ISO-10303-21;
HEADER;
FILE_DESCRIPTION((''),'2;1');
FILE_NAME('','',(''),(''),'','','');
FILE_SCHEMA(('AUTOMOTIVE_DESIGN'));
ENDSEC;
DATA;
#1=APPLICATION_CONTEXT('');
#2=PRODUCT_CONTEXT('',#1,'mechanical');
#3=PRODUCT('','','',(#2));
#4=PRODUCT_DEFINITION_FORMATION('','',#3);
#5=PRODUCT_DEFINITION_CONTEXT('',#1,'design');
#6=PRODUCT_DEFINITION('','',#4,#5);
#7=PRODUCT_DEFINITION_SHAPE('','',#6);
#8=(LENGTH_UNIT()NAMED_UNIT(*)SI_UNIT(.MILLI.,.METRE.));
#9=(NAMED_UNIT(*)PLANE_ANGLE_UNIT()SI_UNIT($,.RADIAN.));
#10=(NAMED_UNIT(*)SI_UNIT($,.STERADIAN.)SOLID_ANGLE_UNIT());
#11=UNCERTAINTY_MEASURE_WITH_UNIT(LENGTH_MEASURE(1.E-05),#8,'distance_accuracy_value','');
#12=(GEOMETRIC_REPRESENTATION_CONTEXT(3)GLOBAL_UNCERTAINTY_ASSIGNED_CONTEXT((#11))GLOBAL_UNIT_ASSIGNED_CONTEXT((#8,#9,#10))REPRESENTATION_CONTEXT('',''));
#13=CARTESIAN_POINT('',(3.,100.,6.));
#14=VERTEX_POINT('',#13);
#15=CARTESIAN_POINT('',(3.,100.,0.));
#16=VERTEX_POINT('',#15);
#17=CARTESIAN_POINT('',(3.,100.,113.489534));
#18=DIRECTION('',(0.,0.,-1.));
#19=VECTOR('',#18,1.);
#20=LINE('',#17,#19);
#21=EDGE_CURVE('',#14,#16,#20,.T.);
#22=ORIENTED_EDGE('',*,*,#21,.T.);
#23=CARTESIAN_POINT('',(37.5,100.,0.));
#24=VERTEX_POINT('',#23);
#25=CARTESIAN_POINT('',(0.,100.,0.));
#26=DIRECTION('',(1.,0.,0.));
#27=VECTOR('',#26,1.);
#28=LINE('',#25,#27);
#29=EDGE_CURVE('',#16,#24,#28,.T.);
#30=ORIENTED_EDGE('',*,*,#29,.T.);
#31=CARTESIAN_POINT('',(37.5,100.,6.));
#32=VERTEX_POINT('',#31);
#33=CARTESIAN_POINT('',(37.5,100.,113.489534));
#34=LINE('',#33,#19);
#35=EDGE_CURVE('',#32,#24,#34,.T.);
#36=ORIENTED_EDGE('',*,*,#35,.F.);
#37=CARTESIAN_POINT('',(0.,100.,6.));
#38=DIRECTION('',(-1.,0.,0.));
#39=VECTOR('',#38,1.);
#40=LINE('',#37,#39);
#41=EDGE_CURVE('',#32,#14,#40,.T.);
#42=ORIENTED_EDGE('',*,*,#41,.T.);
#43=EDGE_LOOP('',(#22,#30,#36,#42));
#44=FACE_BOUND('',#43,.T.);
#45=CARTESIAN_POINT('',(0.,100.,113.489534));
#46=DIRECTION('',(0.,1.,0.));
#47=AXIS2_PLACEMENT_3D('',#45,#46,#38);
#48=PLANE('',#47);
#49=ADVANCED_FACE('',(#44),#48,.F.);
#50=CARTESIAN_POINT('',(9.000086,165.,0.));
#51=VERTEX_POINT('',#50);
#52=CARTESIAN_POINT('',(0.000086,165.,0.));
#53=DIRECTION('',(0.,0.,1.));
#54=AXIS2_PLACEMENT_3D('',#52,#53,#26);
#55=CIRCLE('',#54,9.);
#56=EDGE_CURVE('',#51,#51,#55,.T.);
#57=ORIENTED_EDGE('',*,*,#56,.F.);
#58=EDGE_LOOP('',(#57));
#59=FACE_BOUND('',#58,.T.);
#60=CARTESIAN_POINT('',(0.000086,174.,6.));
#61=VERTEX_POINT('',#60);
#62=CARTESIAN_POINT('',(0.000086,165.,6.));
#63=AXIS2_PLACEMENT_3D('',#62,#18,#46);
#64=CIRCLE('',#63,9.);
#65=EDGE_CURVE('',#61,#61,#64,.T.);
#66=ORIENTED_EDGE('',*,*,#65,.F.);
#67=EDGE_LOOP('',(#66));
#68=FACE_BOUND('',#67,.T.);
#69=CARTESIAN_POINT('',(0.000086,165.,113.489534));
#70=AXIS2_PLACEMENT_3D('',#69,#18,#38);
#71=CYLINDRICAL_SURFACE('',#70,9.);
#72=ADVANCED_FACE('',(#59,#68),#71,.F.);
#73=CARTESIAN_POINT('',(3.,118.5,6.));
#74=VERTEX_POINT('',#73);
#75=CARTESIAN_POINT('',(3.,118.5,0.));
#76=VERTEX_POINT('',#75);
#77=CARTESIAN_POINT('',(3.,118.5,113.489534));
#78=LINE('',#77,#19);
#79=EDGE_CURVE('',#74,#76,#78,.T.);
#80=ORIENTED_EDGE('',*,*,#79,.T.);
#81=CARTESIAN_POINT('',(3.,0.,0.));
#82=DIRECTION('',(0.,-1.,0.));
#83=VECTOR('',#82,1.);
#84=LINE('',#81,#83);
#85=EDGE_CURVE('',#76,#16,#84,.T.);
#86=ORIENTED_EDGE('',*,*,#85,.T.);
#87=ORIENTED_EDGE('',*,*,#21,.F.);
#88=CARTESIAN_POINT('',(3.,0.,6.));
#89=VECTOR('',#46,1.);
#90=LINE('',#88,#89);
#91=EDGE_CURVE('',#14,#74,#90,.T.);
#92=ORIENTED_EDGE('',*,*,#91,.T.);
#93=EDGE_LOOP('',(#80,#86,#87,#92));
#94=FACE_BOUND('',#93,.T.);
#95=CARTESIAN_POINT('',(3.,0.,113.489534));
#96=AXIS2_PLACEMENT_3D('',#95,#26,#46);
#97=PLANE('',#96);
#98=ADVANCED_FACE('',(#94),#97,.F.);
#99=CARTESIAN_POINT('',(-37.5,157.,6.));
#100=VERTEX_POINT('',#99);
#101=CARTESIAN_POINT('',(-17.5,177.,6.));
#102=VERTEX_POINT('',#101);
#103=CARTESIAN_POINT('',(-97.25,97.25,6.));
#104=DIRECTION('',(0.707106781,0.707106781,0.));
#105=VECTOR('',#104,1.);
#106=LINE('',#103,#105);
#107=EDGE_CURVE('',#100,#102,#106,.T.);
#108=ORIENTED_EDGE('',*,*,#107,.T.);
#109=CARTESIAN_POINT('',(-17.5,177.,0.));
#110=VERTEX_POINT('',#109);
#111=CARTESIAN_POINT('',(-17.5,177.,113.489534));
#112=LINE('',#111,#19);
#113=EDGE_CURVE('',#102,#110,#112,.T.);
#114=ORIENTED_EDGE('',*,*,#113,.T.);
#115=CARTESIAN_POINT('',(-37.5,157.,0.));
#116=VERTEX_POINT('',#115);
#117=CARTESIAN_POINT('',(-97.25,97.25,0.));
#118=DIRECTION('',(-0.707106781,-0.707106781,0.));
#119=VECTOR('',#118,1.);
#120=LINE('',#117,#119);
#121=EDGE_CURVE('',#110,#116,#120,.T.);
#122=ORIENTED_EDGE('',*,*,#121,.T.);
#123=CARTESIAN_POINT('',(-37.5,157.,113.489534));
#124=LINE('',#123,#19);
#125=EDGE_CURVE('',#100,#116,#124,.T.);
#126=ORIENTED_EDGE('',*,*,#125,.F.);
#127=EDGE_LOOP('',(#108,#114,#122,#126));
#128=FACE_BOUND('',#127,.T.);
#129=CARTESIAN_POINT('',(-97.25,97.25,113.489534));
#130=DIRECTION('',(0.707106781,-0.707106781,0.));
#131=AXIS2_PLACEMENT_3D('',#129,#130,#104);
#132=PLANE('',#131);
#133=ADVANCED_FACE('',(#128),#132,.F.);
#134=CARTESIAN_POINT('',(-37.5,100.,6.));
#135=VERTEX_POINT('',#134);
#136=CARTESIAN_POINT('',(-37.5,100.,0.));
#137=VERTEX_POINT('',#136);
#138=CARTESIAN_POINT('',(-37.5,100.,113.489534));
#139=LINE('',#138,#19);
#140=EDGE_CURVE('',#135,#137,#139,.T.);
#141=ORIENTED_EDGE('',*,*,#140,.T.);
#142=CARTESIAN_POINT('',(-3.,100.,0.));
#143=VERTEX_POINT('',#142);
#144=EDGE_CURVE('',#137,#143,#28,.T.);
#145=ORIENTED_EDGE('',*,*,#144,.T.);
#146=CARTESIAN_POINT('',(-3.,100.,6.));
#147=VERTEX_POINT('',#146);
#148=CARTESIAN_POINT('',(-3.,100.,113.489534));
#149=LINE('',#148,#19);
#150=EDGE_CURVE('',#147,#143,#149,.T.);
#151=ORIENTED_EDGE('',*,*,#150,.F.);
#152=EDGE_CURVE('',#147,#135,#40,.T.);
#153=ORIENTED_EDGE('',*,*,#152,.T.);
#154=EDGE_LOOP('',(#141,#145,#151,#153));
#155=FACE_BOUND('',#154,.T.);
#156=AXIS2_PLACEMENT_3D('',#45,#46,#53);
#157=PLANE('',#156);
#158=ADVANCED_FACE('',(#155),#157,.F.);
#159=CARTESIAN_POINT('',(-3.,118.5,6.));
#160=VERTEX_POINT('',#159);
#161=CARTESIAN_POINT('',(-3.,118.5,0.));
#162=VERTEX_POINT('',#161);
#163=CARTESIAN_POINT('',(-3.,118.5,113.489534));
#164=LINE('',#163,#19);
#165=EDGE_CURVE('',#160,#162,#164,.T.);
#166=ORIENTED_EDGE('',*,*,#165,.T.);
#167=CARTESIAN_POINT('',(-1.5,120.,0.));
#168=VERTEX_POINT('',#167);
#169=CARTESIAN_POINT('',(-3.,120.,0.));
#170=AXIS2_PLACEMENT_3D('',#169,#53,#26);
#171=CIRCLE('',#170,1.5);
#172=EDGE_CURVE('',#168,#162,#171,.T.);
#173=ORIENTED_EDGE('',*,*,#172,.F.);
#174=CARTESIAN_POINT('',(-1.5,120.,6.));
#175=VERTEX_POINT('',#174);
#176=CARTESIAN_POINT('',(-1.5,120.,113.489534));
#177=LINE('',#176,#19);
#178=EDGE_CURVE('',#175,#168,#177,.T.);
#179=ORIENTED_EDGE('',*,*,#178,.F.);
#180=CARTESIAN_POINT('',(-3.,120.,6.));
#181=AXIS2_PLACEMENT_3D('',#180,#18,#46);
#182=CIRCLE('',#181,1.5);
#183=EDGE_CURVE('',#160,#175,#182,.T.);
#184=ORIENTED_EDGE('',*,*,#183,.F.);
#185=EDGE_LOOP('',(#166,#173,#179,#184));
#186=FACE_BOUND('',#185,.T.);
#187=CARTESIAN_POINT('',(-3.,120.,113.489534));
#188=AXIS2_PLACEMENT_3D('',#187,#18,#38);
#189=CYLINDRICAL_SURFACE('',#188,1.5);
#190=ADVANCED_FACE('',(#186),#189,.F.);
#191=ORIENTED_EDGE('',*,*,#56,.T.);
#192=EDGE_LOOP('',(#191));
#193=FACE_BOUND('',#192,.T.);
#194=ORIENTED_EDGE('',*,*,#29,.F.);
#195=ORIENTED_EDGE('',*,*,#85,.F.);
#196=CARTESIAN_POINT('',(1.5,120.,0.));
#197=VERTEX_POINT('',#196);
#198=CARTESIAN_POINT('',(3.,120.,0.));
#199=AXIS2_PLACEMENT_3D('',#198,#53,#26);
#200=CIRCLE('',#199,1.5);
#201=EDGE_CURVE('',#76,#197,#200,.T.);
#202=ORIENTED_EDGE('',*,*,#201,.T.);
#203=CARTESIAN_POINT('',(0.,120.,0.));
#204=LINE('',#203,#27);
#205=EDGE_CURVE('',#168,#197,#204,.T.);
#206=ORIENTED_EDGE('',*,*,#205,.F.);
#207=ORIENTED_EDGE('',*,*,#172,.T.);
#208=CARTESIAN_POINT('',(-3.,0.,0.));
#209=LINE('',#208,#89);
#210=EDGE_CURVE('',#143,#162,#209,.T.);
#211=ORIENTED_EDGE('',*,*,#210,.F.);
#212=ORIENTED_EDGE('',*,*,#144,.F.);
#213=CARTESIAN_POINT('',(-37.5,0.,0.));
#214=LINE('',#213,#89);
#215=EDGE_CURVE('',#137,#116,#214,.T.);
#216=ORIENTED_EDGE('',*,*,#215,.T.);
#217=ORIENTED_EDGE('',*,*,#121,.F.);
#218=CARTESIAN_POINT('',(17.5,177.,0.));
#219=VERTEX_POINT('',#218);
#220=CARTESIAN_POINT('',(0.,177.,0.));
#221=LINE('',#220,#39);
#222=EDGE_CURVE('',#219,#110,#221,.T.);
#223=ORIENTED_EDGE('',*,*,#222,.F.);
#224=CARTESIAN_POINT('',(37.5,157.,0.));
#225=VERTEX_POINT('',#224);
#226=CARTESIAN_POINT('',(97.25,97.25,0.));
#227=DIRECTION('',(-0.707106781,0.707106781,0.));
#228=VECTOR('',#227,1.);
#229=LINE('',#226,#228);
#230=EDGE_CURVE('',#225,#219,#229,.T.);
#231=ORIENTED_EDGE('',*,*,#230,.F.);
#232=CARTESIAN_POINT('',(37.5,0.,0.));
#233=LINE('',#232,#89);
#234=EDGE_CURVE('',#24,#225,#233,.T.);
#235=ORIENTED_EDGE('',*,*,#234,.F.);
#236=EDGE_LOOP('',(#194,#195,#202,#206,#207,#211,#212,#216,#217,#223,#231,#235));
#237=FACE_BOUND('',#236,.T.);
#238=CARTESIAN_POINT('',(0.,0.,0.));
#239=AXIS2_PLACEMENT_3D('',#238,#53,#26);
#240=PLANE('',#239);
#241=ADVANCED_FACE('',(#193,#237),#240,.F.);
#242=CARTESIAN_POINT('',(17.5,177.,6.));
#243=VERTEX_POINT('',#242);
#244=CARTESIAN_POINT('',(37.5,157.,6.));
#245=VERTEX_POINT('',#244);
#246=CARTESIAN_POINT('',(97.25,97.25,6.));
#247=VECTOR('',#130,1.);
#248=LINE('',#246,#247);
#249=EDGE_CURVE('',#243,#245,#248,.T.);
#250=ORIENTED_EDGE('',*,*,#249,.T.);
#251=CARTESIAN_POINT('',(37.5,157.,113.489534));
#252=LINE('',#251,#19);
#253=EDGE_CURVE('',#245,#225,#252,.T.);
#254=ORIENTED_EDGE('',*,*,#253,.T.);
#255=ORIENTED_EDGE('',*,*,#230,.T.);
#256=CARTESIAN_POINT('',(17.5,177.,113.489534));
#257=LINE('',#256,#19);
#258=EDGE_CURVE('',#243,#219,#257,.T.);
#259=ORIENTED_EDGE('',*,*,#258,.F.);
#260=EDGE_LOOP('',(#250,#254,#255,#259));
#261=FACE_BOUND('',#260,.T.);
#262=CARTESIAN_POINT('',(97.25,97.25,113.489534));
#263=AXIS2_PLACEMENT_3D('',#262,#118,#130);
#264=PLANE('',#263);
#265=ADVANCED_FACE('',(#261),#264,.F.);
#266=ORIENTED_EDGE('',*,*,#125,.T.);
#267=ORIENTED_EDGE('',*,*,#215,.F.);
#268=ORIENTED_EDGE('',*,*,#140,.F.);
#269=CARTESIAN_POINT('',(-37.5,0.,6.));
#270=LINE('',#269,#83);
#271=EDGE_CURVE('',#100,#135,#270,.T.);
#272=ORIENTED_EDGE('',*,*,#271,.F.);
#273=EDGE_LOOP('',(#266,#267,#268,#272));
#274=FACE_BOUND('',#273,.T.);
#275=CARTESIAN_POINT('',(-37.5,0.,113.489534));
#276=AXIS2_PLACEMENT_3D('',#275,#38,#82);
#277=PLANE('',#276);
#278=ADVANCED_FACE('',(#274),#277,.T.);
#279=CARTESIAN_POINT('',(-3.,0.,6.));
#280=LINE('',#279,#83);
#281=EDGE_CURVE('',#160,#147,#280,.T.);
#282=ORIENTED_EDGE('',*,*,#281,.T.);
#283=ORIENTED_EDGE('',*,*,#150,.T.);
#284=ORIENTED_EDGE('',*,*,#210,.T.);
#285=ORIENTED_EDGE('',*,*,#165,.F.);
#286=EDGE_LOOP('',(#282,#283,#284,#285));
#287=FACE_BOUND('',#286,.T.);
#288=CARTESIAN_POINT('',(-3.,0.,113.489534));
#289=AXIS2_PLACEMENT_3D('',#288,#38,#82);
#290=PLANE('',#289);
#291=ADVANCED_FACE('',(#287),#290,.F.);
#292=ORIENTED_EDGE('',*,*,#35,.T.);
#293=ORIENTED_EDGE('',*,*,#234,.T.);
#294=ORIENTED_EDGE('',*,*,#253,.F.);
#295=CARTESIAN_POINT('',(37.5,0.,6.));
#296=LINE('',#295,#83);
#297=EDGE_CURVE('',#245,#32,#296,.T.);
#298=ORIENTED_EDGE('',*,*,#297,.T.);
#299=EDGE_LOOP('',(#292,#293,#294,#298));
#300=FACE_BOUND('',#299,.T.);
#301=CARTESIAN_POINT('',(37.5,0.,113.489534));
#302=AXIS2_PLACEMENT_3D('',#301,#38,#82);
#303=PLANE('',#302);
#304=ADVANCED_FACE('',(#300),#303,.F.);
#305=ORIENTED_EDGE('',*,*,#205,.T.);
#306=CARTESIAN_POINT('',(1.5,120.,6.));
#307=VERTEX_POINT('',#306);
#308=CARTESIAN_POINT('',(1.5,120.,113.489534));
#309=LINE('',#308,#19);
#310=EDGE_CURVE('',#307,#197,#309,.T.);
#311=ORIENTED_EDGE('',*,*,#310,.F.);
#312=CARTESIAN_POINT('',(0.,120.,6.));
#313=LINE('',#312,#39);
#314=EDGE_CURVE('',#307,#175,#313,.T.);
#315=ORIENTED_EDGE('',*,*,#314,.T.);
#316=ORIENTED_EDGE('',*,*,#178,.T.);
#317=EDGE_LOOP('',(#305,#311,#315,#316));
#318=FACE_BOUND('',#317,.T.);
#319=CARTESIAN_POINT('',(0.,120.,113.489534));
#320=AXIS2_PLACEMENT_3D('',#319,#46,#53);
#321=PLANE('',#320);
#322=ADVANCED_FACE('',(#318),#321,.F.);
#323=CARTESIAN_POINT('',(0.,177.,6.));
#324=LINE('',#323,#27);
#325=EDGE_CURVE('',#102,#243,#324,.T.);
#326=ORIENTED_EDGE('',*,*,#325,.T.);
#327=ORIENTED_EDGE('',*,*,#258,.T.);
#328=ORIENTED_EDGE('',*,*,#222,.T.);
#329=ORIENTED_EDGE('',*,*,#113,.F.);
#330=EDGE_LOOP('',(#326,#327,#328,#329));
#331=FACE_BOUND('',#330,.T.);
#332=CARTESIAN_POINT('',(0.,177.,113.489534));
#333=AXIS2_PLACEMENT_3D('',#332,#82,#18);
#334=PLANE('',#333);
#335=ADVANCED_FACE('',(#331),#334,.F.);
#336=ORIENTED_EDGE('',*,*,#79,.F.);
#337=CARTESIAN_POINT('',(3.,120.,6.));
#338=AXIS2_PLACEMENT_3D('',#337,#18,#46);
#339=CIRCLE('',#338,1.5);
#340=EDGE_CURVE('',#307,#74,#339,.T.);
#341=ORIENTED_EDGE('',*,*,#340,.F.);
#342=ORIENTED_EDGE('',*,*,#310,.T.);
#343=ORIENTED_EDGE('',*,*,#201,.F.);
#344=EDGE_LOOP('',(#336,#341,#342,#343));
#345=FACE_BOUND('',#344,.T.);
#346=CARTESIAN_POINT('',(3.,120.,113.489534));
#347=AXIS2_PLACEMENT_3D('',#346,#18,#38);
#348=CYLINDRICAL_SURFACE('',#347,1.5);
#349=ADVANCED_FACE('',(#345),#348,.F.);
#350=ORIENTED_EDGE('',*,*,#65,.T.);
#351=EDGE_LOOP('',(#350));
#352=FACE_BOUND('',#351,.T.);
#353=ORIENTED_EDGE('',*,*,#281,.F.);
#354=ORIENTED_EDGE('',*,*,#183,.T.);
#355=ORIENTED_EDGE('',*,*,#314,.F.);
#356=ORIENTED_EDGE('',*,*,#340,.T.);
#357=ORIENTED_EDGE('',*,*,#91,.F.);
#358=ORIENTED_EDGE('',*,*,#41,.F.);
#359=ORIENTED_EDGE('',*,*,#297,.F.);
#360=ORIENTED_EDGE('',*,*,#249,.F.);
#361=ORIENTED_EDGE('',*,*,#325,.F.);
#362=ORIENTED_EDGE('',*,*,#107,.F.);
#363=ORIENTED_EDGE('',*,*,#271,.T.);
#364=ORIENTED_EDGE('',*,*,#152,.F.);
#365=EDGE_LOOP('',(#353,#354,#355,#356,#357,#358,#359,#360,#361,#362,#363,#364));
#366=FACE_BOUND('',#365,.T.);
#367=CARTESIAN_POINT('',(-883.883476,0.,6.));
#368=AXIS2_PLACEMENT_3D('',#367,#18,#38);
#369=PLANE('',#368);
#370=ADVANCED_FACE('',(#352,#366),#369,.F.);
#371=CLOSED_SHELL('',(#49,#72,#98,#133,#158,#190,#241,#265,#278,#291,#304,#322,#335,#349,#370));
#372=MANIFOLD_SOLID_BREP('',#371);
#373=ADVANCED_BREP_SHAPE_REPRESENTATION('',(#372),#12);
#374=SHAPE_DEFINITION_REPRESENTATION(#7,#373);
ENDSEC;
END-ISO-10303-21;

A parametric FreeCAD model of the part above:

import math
import FreeCAD as App
import Part
import Sketcher

V = App.Vector
Q = App.Units.Quantity

doc = App.newDocument("Part")
body = doc.addObject("PartDesign::Body", "Body")

# Sketch on XY plane
sketch1 = body.newObject("Sketcher::SketchObject", "Sketch")
sketch1.AttachmentSupport = (doc.getObject("XY_Plane"), [""])
sketch1.MapMode = "FlatFace"
sketch1.addGeometry([
    Part.LineSegment(V(3, 100, 0), V(37.5, 100, 0)),  # 0
    Part.LineSegment(V(37.5, 100, 0), V(37.5, 157, 0)),  # 1
    Part.LineSegment(V(37.5, 157, 0), V(17.5, 177, 0)),  # 2
    Part.LineSegment(V(17.5, 177, 0), V(-17.5, 177, 0)),  # 3
    Part.LineSegment(V(-17.5, 177, 0), V(-37.5, 157, 0)),  # 4
    Part.LineSegment(V(-37.5, 157, 0), V(-37.5, 100, 0)),  # 5
    Part.LineSegment(V(-37.5, 100, 0), V(-3, 100, 0)),  # 6
    Part.LineSegment(V(-3, 100, 0), V(-3, 118.5, 0)),  # 7
    Part.ArcOfCircle(Part.Circle(V(-3, 120, 0), V(0, 0, 1), 1.5), math.radians(0), math.radians(270)),  # 8
    Part.LineSegment(V(-1.5, 120, 0), V(1.5, 120, 0)),  # 9
    Part.ArcOfCircle(Part.Circle(V(3, 120, 0), V(0, 0, 1), 1.5), math.radians(0), math.radians(180)),  # 10
    Part.ArcOfCircle(Part.Circle(V(3, 120, 0), V(0, 0, 1), 1.5), math.radians(-90), math.radians(0)),  # 11
    Part.LineSegment(V(3, 118.5, 0), V(3, 100, 0)),  # 12
    Part.Circle(V(0.000086, 165, 0), V(0, 0, 1), 9),  # 13
], False)
sketch1.addConstraint([
    Sketcher.Constraint("Coincident", 0, 2, 1, 1),
    Sketcher.Constraint("Coincident", 1, 2, 2, 1),
    Sketcher.Constraint("Coincident", 2, 2, 3, 1),
    Sketcher.Constraint("Coincident", 3, 2, 4, 1),
    Sketcher.Constraint("Coincident", 4, 2, 5, 1),
    Sketcher.Constraint("Coincident", 5, 2, 6, 1),
    Sketcher.Constraint("Coincident", 6, 2, 7, 1),
    Sketcher.Constraint("Coincident", 7, 2, 8, 2),
    Sketcher.Constraint("Coincident", 8, 1, 9, 1),
    Sketcher.Constraint("Coincident", 9, 2, 10, 2),
    Sketcher.Constraint("Tangent", 10, 1, 11, 2),
    Sketcher.Constraint("Coincident", 11, 1, 12, 1),
    Sketcher.Constraint("Coincident", 12, 2, 0, 1),
    Sketcher.Constraint("Horizontal", 0),
    Sketcher.Constraint("Vertical", 1),
    Sketcher.Constraint("Horizontal", 3),
    Sketcher.Constraint("Vertical", 5),
    Sketcher.Constraint("Horizontal", 6),
    Sketcher.Constraint("Vertical", 7),
    Sketcher.Constraint("Horizontal", 9),
    Sketcher.Constraint("Vertical", 12),
    Sketcher.Constraint("Equal", 8, 10),
    Sketcher.Constraint("Equal", 10, 11),
    Sketcher.Constraint("Symmetric", 8, 3, 10, 3, -2),
    Sketcher.Constraint("Symmetric", 1, 2, 4, 2, -2),
    Sketcher.Constraint("Symmetric", 6, 2, 12, 2, -2),
    Sketcher.Constraint("Perpendicular", 2, 4),
    Sketcher.Constraint("Horizontal", 11, 3, 8, 1),
    Sketcher.Constraint("Horizontal", 9, 2, 10, 1),
    Sketcher.Constraint("Vertical", 8, 3, 6, 2),
    Sketcher.Constraint("Equal", 2, 4),
    Sketcher.Constraint("Diameter", 13, Q("18 mm")),
    Sketcher.Constraint("Radius", 8, Q("1.5 mm")),
    Sketcher.Constraint("DistanceX", 3, 2, 3, 1, Q("35 mm")),
    Sketcher.Constraint("DistanceX", 9, 1, 9, 2, Q("3 mm")),
    Sketcher.Constraint("DistanceY", 1, 1, 1, 2, Q("57 mm")),
    Sketcher.Constraint("DistanceX", 0, 1, 0, 2, Q("34.5 mm")),
    Sketcher.Constraint("DistanceY", 7, 1, 7, 2, Q("18.5 mm")),
    Sketcher.Constraint("DistanceY", -1, 1, 8, 3, Q("120 mm")),
    Sketcher.Constraint("DistanceY", -1, 1, 13, 3, Q("165 mm")),
    Sketcher.Constraint("DistanceX", 13, 3, 10, 3, Q("2.999914 mm")),
])
pad1 = body.newObject("PartDesign::Pad", "Pad")
pad1.Profile = sketch1
pad1.Length = 6

doc.recompute()
